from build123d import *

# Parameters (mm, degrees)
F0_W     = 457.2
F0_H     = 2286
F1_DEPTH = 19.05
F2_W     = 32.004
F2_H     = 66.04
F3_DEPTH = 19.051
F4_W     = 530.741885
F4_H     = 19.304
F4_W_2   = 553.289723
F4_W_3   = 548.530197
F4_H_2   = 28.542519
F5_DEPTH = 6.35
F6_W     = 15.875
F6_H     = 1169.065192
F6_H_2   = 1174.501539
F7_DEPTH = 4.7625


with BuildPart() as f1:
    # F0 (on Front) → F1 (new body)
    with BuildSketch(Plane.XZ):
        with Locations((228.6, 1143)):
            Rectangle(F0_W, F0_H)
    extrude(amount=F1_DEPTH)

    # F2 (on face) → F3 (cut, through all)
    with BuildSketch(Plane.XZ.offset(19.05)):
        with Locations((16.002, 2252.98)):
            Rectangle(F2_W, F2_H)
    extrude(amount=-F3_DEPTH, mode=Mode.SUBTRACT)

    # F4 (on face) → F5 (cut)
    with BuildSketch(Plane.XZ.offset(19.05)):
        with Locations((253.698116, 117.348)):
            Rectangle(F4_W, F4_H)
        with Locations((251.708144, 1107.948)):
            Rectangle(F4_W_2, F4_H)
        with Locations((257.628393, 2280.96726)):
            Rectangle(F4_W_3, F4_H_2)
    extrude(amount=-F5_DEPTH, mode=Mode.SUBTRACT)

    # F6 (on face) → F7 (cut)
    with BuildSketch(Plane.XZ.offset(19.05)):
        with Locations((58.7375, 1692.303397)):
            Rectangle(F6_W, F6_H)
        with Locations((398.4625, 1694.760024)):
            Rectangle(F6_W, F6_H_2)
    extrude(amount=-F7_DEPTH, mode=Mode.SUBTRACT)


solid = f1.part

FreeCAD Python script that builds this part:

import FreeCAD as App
import Part
import Sketcher
Q = App.Units.Quantity

doc = App.newDocument("Part")
body = doc.addObject("PartDesign::Body", "Body")

# Sketch on XZ plane
sketch1 = body.newObject("Sketcher::SketchObject", "Sketch")
sketch1.AttachmentSupport = (doc.getObject("XZ_Plane"), [""])
sketch1.MapMode = "FlatFace"
sketch1.addGeometry(Part.LineSegment(App.Vector(0, 2286, 0), App.Vector(0, 0, 0)), False)
sketch1.addGeometry(Part.LineSegment(App.Vector(0, 0, 0), App.Vector(457, 0, 0)), False)
sketch1.addGeometry(Part.LineSegment(App.Vector(457, 0, 0), App.Vector(457, 2286, 0)), False)
sketch1.addGeometry(Part.LineSegment(App.Vector(457, 2286, 0), App.Vector(0, 2286, 0)), False)
sketch1.addConstraint(Sketcher.Constraint("Coincident", 0, 2, 1, 1))
sketch1.addConstraint(Sketcher.Constraint("Coincident", 1, 2, 2, 1))
sketch1.addConstraint(Sketcher.Constraint("Coincident", 2, 2, 3, 1))
sketch1.addConstraint(Sketcher.Constraint("Coincident", 3, 2, 0, 1))
sketch1.addConstraint(Sketcher.Constraint("Vertical", 0))
sketch1.addConstraint(Sketcher.Constraint("Horizontal", 1))
sketch1.addConstraint(Sketcher.Constraint("Vertical", 2))
sketch1.addConstraint(Sketcher.Constraint("Horizontal", 3))
sketch1.addConstraint(Sketcher.Constraint("Coincident", 0, 2, -1, 1))
sketch1.addConstraint(Sketcher.Constraint("DistanceX", 1, 1, 1, 2, Q("18 in")))
sketch1.addConstraint(Sketcher.Constraint("DistanceY", 0, 2, 0, 1, Q("90 in")))
pad1 = body.newObject("PartDesign::Pad", "Pad")
pad1.Profile = sketch1
pad1.Length = Q("0.75 in")

# Sketch on XZ plane
sketch2 = body.newObject("Sketcher::SketchObject", "Sketch001")
sketch2.AttachmentSupport = (doc.getObject("XZ_Plane"), [""])
sketch2.MapMode = "FlatFace"
sketch2.AttachmentOffset = App.Placement(App.Vector(0, 0, 0.75 * 25.4), App.Rotation())
sketch2.addGeometry(Part.LineSegment(App.Vector(0, 2286, 0), App.Vector(0, 2220, 0)), False)
sketch2.addGeometry(Part.LineSegment(App.Vector(0, 2220, 0), App.Vector(32, 2220, 0)), False)
sketch2.addGeometry(Part.LineSegment(App.Vector(32, 2220, 0), App.Vector(32, 2286, 0)), False)
sketch2.addGeometry(Part.LineSegment(App.Vector(32, 2286, 0), App.Vector(0, 2286, 0)), False)
sketch2.addConstraint(Sketcher.Constraint("Coincident", 0, 2, 1, 1))
sketch2.addConstraint(Sketcher.Constraint("Coincident", 1, 2, 2, 1))
sketch2.addConstraint(Sketcher.Constraint("Coincident", 2, 2, 3, 1))
sketch2.addConstraint(Sketcher.Constraint("Coincident", 3, 2, 0, 1))
sketch2.addConstraint(Sketcher.Constraint("Vertical", 0))
sketch2.addConstraint(Sketcher.Constraint("Horizontal", 1))
sketch2.addConstraint(Sketcher.Constraint("Vertical", 2))
sketch2.addConstraint(Sketcher.Constraint("Horizontal", 3))
sketch2.addConstraint(Sketcher.Constraint("PointOnObject", 0, 2, -2))
sketch2.addConstraint(Sketcher.Constraint("DistanceY", 0, 2, 0, 1, Q("2.6 in")))
sketch2.addConstraint(Sketcher.Constraint("DistanceY", -1, 1, 2, 2, Q("90 in")))
sketch2.addConstraint(Sketcher.Constraint("DistanceX", 1, 1, 1, 2, Q("1.26 in")))
pocket1 = body.newObject("PartDesign::Pocket", "Pocket")
pocket1.Profile = sketch2
pocket1.Type = "ThroughAll"

# Sketch on XZ plane
sketch3 = body.newObject("Sketcher::SketchObject", "Sketch002")
sketch3.AttachmentSupport = (doc.getObject("XZ_Plane"), [""])
sketch3.MapMode = "FlatFace"
sketch3.AttachmentOffset = App.Placement(App.Vector(0, 0, 0.75 * 25.4), App.Rotation())
sketch3.addGeometry(Part.LineSegment(App.Vector(-12, 127, 0), App.Vector(-12, 108, 0)), False)
sketch3.addGeometry(Part.LineSegment(App.Vector(-12, 108, 0), App.Vector(519, 108, 0)), False)
sketch3.addGeometry(Part.LineSegment(App.Vector(519, 108, 0), App.Vector(519, 127, 0)), False)
sketch3.addGeometry(Part.LineSegment(App.Vector(519, 127, 0), App.Vector(-12, 127, 0)), False)
sketch3.addGeometry(Part.LineSegment(App.Vector(-25, 1118, 0), App.Vector(-25, 1098, 0)), False)
sketch3.addGeometry(Part.LineSegment(App.Vector(-25, 1098, 0), App.Vector(528, 1098, 0)), False)
sketch3.addGeometry(Part.LineSegment(App.Vector(528, 1098, 0), App.Vector(528, 1118, 0)), False)
sketch3.addGeometry(Part.LineSegment(App.Vector(528, 1118, 0), App.Vector(-25, 1118, 0)), False)
sketch3.addGeometry(Part.LineSegment(App.Vector(-17, 2295, 0), App.Vector(-17, 2267, 0)), False)
sketch3.addGeometry(Part.LineSegment(App.Vector(-17, 2267, 0), App.Vector(532, 2267, 0)), False)
sketch3.addGeometry(Part.LineSegment(App.Vector(532, 2267, 0), App.Vector(532, 2295, 0)), False)
sketch3.addGeometry(Part.LineSegment(App.Vector(532, 2295, 0), App.Vector(-17, 2295, 0)), False)
sketch3.addConstraint(Sketcher.Constraint("Coincident", 0, 2, 1, 1))
sketch3.addConstraint(Sketcher.Constraint("Coincident", 1, 2, 2, 1))
sketch3.addConstraint(Sketcher.Constraint("Coincident", 2, 2, 3, 1))
sketch3.addConstraint(Sketcher.Constraint("Coincident", 3, 2, 0, 1))
sketch3.addConstraint(Sketcher.Constraint("Coincident", 4, 2, 5, 1))
sketch3.addConstraint(Sketcher.Constraint("Coincident", 5, 2, 6, 1))
sketch3.addConstraint(Sketcher.Constraint("Coincident", 6, 2, 7, 1))
sketch3.addConstraint(Sketcher.Constraint("Coincident", 7, 2, 4, 1))
sketch3.addConstraint(Sketcher.Constraint("Coincident", 8, 2, 9, 1))
sketch3.addConstraint(Sketcher.Constraint("Coincident", 9, 2, 10, 1))
sketch3.addConstraint(Sketcher.Constraint("Coincident", 10, 2, 11, 1))
sketch3.addConstraint(Sketcher.Constraint("Coincident", 11, 2, 8, 1))
sketch3.addConstraint(Sketcher.Constraint("Vertical", 0))
sketch3.addConstraint(Sketcher.Constraint("Horizontal", 1))
sketch3.addConstraint(Sketcher.Constraint("Vertical", 2))
sketch3.addConstraint(Sketcher.Constraint("Horizontal", 3))
sketch3.addConstraint(Sketcher.Constraint("Vertical", 4))
sketch3.addConstraint(Sketcher.Constraint("Horizontal", 5))
sketch3.addConstraint(Sketcher.Constraint("Vertical", 6))
sketch3.addConstraint(Sketcher.Constraint("Horizontal", 7))
sketch3.addConstraint(Sketcher.Constraint("Vertical", 8))
sketch3.addConstraint(Sketcher.Constraint("Horizontal", 9))
sketch3.addConstraint(Sketcher.Constraint("Vertical", 10))
sketch3.addConstraint(Sketcher.Constraint("Horizontal", 11))
sketch3.addConstraint(Sketcher.Constraint("Equal", 2, 4))
sketch3.addConstraint(Sketcher.Constraint("DistanceY", -1, 1, 2, 2, Q("5 in")))
sketch3.addConstraint(Sketcher.Constraint("DistanceY", -1, 1, 6, 2, Q("44 in")))
sketch3.addConstraint(Sketcher.Constraint("DistanceY", 4, 2, 8, 2, Q("46 in")))
sketch3.addConstraint(Sketcher.Constraint("DistanceY", 0, 2, 0, 1, Q("0.76 in")))
sketch3.addConstraint(Sketcher.Constraint("DistanceY", 8, 2, 8, 1, Q("28.542519 mm")))
sketch3.addConstraint(Sketcher.Constraint("DistanceX", 1, 1, 1, 2, Q("530.741885 mm")))
sketch3.addConstraint(Sketcher.Constraint("DistanceX", 5, 1, 5, 2, Q("553.289723 mm")))
sketch3.addConstraint(Sketcher.Constraint("DistanceX", 9, 1, 9, 2, Q("548.530197 mm")))
sketch3.addConstraint(Sketcher.Constraint("DistanceX", -1, 1, 1, 2, Q("519.069058 mm")))
sketch3.addConstraint(Sketcher.Constraint("DistanceX", -1, 1, 9, 2, Q("531.893491 mm")))
sketch3.addConstraint(Sketcher.Constraint("DistanceX", 4, 2, 3, 2, Q("13.263891 mm")))
pocket2 = body.newObject("PartDesign::Pocket", "Pocket001")
pocket2.Profile = sketch3
pocket2.Length = Q("0.25 in")

# Sketch on XZ plane
sketch4 = body.newObject("Sketcher::SketchObject", "Sketch003")
sketch4.AttachmentSupport = (doc.getObject("XZ_Plane"), [""])
sketch4.MapMode = "FlatFace"
sketch4.AttachmentOffset = App.Placement(App.Vector(0, 0, 0.75 * 25.4), App.Rotation())
sketch4.addGeometry(Part.LineSegment(App.Vector(51, 2277, 0), App.Vector(51, 1108, 0)), False)
sketch4.addGeometry(Part.LineSegment(App.Vector(51, 1108, 0), App.Vector(67, 1108, 0)), False)
sketch4.addGeometry(Part.LineSegment(App.Vector(67, 1108, 0), App.Vector(67, 2277, 0)), False)
sketch4.addGeometry(Part.LineSegment(App.Vector(67, 2277, 0), App.Vector(51, 2277, 0)), False)
sketch4.addGeometry(Part.LineSegment(App.Vector(391, 2282, 0), App.Vector(391, 1108, 0)), False)
sketch4.addGeometry(Part.LineSegment(App.Vector(391, 1108, 0), App.Vector(406, 1108, 0)), False)
sketch4.addGeometry(Part.LineSegment(App.Vector(406, 1108, 0), App.Vector(406, 2282, 0)), False)
sketch4.addGeometry(Part.LineSegment(App.Vector(406, 2282, 0), App.Vector(391, 2282, 0)), False)
sketch4.addConstraint(Sketcher.Constraint("Coincident", 0, 2, 1, 1))
sketch4.addConstraint(Sketcher.Constraint("Coincident", 1, 2, 2, 1))
sketch4.addConstraint(Sketcher.Constraint("Coincident", 2, 2, 3, 1))
sketch4.addConstraint(Sketcher.Constraint("Coincident", 3, 2, 0, 1))
sketch4.addConstraint(Sketcher.Constraint("Coincident", 4, 2, 5, 1))
sketch4.addConstraint(Sketcher.Constraint("Coincident", 5, 2, 6, 1))
sketch4.addConstraint(Sketcher.Constraint("Coincident", 6, 2, 7, 1))
sketch4.addConstraint(Sketcher.Constraint("Coincident", 7, 2, 4, 1))
sketch4.addConstraint(Sketcher.Constraint("Vertical", 0))
sketch4.addConstraint(Sketcher.Constraint("Horizontal", 1))
sketch4.addConstraint(Sketcher.Constraint("Vertical", 2))
sketch4.addConstraint(Sketcher.Constraint("Horizontal", 3))
sketch4.addConstraint(Sketcher.Constraint("Vertical", 4))
sketch4.addConstraint(Sketcher.Constraint("Horizontal", 5))
sketch4.addConstraint(Sketcher.Constraint("Vertical", 6))
sketch4.addConstraint(Sketcher.Constraint("Horizontal", 7))
sketch4.addConstraint(Sketcher.Constraint("Equal", 3, 5))
sketch4.addConstraint(Sketcher.Constraint("DistanceX", -1, 1, 0, 2, Q("2 in")))
sketch4.addConstraint(Sketcher.Constraint("DistanceX", -1, 1, 5, 2, Q("16 in")))
sketch4.addConstraint(Sketcher.Constraint("DistanceX", 1, 1, 1, 2, Q("0.625 in")))
sketch4.addConstraint(Sketcher.Constraint("DistanceY", 4, 2, 4, 1, Q("1174.501539 mm")))
sketch4.addConstraint(Sketcher.Constraint("DistanceY", -1, 1, 0, 2, Q("1107.770801 mm")))
sketch4.addConstraint(Sketcher.Constraint("DistanceY", 2, 2, 6, 2, Q("5.1748 mm")))
sketch4.addConstraint(Sketcher.Constraint("DistanceY", 0, 2, 0, 1, Q("1169.065192 mm")))
pocket3 = body.newObject("PartDesign::Pocket", "Pocket002")
pocket3.Profile = sketch4
pocket3.Length = Q("0.1875 in")

doc.recompute()
